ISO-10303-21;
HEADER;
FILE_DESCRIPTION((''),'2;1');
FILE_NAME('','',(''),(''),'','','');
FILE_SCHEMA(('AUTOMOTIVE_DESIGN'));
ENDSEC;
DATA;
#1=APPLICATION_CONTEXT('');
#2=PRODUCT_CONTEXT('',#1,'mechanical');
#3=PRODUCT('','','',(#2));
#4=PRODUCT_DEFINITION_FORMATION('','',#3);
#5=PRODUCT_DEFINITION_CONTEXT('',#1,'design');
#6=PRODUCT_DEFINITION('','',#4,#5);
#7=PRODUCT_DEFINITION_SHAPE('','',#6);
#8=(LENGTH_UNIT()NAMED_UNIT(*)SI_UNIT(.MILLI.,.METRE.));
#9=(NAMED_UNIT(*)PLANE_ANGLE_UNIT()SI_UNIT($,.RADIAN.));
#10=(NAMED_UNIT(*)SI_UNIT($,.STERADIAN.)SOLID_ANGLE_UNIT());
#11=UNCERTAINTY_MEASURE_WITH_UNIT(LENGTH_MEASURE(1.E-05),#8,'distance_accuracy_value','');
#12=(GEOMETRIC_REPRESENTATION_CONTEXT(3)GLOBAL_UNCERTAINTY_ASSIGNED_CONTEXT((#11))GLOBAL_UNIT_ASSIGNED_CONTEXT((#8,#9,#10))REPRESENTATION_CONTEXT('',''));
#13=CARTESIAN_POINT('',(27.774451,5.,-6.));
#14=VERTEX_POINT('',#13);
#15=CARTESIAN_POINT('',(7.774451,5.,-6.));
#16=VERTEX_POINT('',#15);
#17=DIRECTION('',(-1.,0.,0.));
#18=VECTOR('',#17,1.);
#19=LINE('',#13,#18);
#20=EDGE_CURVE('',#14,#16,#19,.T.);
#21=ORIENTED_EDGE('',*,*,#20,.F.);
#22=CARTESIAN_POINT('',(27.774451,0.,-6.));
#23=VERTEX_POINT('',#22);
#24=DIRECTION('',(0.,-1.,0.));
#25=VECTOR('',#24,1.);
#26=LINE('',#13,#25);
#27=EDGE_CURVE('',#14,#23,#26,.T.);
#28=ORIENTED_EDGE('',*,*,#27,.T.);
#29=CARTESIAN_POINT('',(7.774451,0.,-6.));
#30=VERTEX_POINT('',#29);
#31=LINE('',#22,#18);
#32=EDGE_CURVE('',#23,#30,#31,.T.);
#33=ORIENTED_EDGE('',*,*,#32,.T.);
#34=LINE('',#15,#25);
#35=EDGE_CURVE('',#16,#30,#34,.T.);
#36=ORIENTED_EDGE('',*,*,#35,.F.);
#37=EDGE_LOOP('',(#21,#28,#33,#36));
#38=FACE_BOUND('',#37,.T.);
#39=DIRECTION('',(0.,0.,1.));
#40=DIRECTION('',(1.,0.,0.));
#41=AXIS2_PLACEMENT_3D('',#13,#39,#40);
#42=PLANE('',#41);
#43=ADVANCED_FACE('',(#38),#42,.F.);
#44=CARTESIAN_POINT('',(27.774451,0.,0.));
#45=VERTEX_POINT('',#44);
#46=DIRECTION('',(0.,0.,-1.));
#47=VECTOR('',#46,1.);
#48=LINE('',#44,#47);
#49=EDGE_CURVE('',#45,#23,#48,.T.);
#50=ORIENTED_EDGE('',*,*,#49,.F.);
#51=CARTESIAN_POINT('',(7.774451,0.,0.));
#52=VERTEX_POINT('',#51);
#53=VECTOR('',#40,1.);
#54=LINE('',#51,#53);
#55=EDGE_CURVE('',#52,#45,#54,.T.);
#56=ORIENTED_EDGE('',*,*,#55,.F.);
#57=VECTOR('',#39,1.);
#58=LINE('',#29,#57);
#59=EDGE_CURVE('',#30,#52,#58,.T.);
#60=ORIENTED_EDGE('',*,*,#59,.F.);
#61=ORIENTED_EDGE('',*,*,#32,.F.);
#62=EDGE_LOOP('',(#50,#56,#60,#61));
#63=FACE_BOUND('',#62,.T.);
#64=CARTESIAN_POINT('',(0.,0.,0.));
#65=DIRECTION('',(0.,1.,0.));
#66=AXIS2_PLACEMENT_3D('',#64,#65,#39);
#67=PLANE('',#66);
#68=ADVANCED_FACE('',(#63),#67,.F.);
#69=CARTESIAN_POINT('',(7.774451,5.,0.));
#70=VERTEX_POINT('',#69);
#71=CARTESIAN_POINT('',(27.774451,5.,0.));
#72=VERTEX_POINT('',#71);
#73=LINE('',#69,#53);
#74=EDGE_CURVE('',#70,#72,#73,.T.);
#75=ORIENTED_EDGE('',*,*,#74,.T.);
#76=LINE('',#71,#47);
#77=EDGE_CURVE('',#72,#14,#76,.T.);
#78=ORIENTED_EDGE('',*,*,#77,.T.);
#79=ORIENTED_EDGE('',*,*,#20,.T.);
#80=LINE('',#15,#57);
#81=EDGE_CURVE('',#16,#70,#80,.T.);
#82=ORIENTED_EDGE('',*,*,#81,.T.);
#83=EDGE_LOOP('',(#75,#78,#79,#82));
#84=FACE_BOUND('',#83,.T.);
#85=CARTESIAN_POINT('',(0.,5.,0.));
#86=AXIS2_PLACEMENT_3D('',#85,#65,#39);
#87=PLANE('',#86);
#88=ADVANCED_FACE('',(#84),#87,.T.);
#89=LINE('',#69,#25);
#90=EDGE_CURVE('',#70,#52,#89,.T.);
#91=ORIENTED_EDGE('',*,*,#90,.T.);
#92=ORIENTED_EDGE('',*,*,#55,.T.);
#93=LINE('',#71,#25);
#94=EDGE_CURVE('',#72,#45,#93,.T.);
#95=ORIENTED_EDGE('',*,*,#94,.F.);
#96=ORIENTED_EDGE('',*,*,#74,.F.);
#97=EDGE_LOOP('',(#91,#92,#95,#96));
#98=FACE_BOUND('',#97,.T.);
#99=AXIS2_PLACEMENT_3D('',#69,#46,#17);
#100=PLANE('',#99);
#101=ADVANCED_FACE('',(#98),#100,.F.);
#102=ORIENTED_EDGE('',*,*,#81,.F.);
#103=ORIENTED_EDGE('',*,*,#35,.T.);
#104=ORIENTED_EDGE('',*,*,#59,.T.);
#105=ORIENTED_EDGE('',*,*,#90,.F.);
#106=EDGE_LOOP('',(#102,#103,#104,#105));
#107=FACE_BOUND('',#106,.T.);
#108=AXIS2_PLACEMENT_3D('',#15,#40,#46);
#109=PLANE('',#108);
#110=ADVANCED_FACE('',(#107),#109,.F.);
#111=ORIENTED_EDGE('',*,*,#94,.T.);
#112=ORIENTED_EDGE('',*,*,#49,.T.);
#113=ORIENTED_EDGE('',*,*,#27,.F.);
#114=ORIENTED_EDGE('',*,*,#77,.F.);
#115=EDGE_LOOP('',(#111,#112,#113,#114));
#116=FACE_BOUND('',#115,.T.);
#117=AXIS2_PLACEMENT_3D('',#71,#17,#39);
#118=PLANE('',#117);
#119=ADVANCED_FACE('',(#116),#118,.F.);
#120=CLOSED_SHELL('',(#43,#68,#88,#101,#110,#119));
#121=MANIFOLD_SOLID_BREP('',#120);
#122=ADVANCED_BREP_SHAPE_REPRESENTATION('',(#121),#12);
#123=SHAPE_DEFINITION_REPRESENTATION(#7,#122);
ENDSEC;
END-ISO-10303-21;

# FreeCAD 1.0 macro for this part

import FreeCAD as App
import Part
import Sketcher


def add_polygon(sketch, points):
    """Adds a closed chain of lines whose ends are joined by coincident constraints."""
    first, n = sketch.GeometryCount, len(points)
    for a, b in zip(points, points[1:] + points[:1]):
        sketch.addGeometry(Part.LineSegment(App.Vector(*a, 0), App.Vector(*b, 0)), False)
    for i in range(n):
        sketch.addConstraint(Sketcher.Constraint("Coincident", first + i, 2, first + (i + 1) % n, 1))

doc = App.newDocument("Part")
body = doc.addObject("PartDesign::Body", "Body")

sketch1 = body.newObject("Sketcher::SketchObject", "Sketch")
sketch1.AttachmentSupport = (doc.getObject("XZ_Plane"), [""])
sketch1.MapMode = "FlatFace"
add_polygon(sketch1, [(7.774451, -6), (7.774451, 0), (27.774451, 0), (27.774451, -6)])
sketch1.addConstraint([
    Sketcher.Constraint("Vertical", 0),
    Sketcher.Constraint("Horizontal", 1),
    Sketcher.Constraint("Vertical", 2),
    Sketcher.Constraint("Horizontal", 3),
    Sketcher.Constraint("PointOnObject", 0, 2, -1),
    Sketcher.Constraint("DistanceX", 1, 1, 1, 2, 20.0),
    Sketcher.Constraint("DistanceY", 0, 1, 0, 2, 6.0),
    Sketcher.Constraint("DistanceX", -1, 1, 0, 2, 7.774451),
])
pad1 = body.newObject("PartDesign::Pad", "Pad")
pad1.Profile = sketch1
pad1.Length = 5
pad1.Reversed = True

doc.recompute()
